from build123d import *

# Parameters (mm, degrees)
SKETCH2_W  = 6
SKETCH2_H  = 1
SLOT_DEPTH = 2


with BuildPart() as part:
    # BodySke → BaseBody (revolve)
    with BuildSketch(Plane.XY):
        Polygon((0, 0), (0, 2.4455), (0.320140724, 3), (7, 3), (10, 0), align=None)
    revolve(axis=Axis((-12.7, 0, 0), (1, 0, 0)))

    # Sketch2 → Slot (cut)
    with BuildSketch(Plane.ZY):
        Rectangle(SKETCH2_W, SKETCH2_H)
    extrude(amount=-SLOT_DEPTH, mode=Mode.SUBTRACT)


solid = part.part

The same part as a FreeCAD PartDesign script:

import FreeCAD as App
import Part
import Sketcher
from FreeCAD import Vector
Q = App.Units.Quantity

doc = App.newDocument("Part")
body = doc.addObject("PartDesign::Body", "Body")

sketch1 = doc.addObject("Sketcher::SketchObject", "Sketch")
body.addObject(sketch1)
sketch1.AttachmentSupport = (doc.XY_Plane, [""])
sketch1.MapMode = "FlatFace"
sketch1.addGeometry([
    Part.LineSegment(Vector(0, 2.4, 0), Vector(0, 0, 0)),
    Part.LineSegment(Vector(0, 0, 0), Vector(10, 0, 0)),
    Part.LineSegment(Vector(10, 0, 0), Vector(7, 3, 0)),
    Part.LineSegment(Vector(7, 3, 0), Vector(0.3, 3, 0)),
    Part.LineSegment(Vector(0.3, 3, 0), Vector(0, 2.4, 0)),
], False)
sketch1.addConstraint([
    Sketcher.Constraint("Coincident", 0, 2, 1, 1),
    Sketcher.Constraint("Coincident", 1, 2, 2, 1),
    Sketcher.Constraint("Coincident", 2, 2, 3, 1),
    Sketcher.Constraint("Coincident", 3, 2, 4, 1),
    Sketcher.Constraint("Coincident", 4, 2, 0, 1),
    Sketcher.Constraint("Vertical", 0),
    Sketcher.Constraint("Horizontal", 1),
    Sketcher.Constraint("Horizontal", 3),
    Sketcher.Constraint("Coincident", 0, 2, -1, 1),
    Sketcher.Constraint("DistanceX", 1, 1, 1, 2, 10.0),
    Sketcher.Constraint("Angle", 2, Q("135 deg")),
    Sketcher.Constraint("Angle", 4, Q("-120 deg")),
    Sketcher.Constraint("DistanceX", -1, 1, 2, 2, 7.0),
    Sketcher.Constraint("DistanceY", 0, 2, 0, 1, 2.4455),
])
revolution = doc.addObject("PartDesign::Revolution", "Revolution")
body.addObject(revolution)
revolution.Profile = sketch1
revolution.ReferenceAxis = (sketch1, ["H_Axis"])
revolution.Angle = 360

sketch2 = doc.addObject("Sketcher::SketchObject", "Sketch001")
body.addObject(sketch2)
sketch2.AttachmentSupport = (doc.YZ_Plane, [""])
sketch2.MapMode = "FlatFace"
sketch2.addGeometry([
    Part.LineSegment(Vector(0.5, -3, 0), Vector(-0.5, -3, 0)),
    Part.LineSegment(Vector(-0.5, -3, 0), Vector(-0.5, 3, 0)),
    Part.LineSegment(Vector(-0.5, 3, 0), Vector(0.5, 3, 0)),
    Part.LineSegment(Vector(0.5, 3, 0), Vector(0.5, -3, 0)),
], False)
sketch2.addConstraint([
    Sketcher.Constraint("Coincident", 0, 2, 1, 1),
    Sketcher.Constraint("Coincident", 1, 2, 2, 1),
    Sketcher.Constraint("Coincident", 2, 2, 3, 1),
    Sketcher.Constraint("Coincident", 3, 2, 0, 1),
    Sketcher.Constraint("Horizontal", 0),
    Sketcher.Constraint("Vertical", 1),
    Sketcher.Constraint("Horizontal", 2),
    Sketcher.Constraint("Vertical", 3),
    Sketcher.Constraint("Symmetric", 0, 2, 2, 2, -1, 1),
    Sketcher.Constraint("DistanceX", 0, 2, 0, 1, 1.0),
    Sketcher.Constraint("DistanceY", 1, 1, 1, 2, 6.0),
])
pocket1 = doc.addObject("PartDesign::Pocket", "Pocket")
body.addObject(pocket1)
pocket1.Profile = sketch2
pocket1.Length = 2
pocket1.Reversed = True

doc.recompute()
